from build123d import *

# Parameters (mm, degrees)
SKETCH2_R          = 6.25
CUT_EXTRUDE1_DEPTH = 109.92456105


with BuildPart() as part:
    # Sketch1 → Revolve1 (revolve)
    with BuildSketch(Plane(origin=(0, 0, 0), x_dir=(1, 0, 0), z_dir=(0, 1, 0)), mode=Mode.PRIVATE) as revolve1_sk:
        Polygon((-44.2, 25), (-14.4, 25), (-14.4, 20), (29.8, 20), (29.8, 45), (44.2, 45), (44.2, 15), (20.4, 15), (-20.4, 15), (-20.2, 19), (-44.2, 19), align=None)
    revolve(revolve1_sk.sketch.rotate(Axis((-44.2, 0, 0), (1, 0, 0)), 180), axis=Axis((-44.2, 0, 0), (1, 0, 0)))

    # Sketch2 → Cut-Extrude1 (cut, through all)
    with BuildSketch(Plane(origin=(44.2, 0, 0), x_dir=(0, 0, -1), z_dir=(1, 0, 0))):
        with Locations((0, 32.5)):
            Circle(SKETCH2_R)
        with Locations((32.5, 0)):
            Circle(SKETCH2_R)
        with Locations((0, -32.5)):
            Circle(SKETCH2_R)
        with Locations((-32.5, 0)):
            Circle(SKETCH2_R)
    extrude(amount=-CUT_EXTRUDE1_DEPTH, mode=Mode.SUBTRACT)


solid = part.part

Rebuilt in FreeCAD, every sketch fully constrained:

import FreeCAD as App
import Part
import Sketcher
from FreeCAD import Vector

doc = App.newDocument("Part")
params = doc.addObject("Spreadsheet::Sheet", "Params")
for row, (alias, value) in enumerate([
    ("sketch1_width", "24 mm"),
    ("sketch1_height", "6 mm"),
    ("sketch1_height2", "30 mm"),
    ("sketch1_height3", "25 mm"),
    ("sketch1_height4", "5 mm"),
    ("revolution_angle", "360 deg"),
    ("sketch2_diameter", "12.5 mm"),
], start=1):
    params.set(f"A{row}", alias)
    params.set(f"B{row}", "=" + value)
    params.setAlias(f"B{row}", alias)

body = doc.addObject("PartDesign::Body", "Body")

sketch1 = body.newObject("Sketcher::SketchObject", "Sketch")
sketch1.AttachmentSupport = (doc.getObject("XZ_Plane"), [""])
sketch1.MapMode = "FlatFace"
sketch1.addGeometry(Part.LineSegment(Vector(-14.4, -25, 0), Vector(-44.2, -25, 0)), False)
sketch1.addGeometry(Part.LineSegment(Vector(-44.2, -25, 0), Vector(-44.2, -19, 0)), False)
sketch1.addGeometry(Part.LineSegment(Vector(-44.2, -19, 0), Vector(-20.2, -19, 0)), False)
sketch1.addGeometry(Part.LineSegment(Vector(-20.2, -19, 0), Vector(-20.4, -15, 0)), False)
sketch1.addGeometry(Part.LineSegment(Vector(-20.4, -15, 0), Vector(44.2, -15, 0)), False)
sketch1.addGeometry(Part.LineSegment(Vector(44.2, -15, 0), Vector(44.2, -45, 0)), False)
sketch1.addGeometry(Part.LineSegment(Vector(44.2, -45, 0), Vector(29.8, -45, 0)), False)
sketch1.addGeometry(Part.LineSegment(Vector(29.8, -45, 0), Vector(29.8, -20, 0)), False)
sketch1.addGeometry(Part.LineSegment(Vector(29.8, -20, 0), Vector(-14.4, -20, 0)), False)
sketch1.addGeometry(Part.LineSegment(Vector(-14.4, -20, 0), Vector(-14.4, -25, 0)), False)
sketch1.addConstraint(Sketcher.Constraint("Coincident", 0, 2, 1, 1))
sketch1.addConstraint(Sketcher.Constraint("Coincident", 1, 2, 2, 1))
sketch1.addConstraint(Sketcher.Constraint("Coincident", 2, 2, 3, 1))
sketch1.addConstraint(Sketcher.Constraint("Coincident", 3, 2, 4, 1))
sketch1.addConstraint(Sketcher.Constraint("Coincident", 4, 2, 5, 1))
sketch1.addConstraint(Sketcher.Constraint("Coincident", 5, 2, 6, 1))
sketch1.addConstraint(Sketcher.Constraint("Coincident", 6, 2, 7, 1))
sketch1.addConstraint(Sketcher.Constraint("Coincident", 7, 2, 8, 1))
sketch1.addConstraint(Sketcher.Constraint("Coincident", 8, 2, 9, 1))
sketch1.addConstraint(Sketcher.Constraint("Coincident", 9, 2, 0, 1))
sketch1.addConstraint(Sketcher.Constraint("Horizontal", 0))
sketch1.addConstraint(Sketcher.Constraint("Vertical", 1))
sketch1.addConstraint(Sketcher.Constraint("Horizontal", 2))
sketch1.addConstraint(Sketcher.Constraint("Horizontal", 4))
sketch1.addConstraint(Sketcher.Constraint("Vertical", 5))
sketch1.addConstraint(Sketcher.Constraint("Horizontal", 6))
sketch1.addConstraint(Sketcher.Constraint("Vertical", 7))
sketch1.addConstraint(Sketcher.Constraint("Horizontal", 8))
sketch1.addConstraint(Sketcher.Constraint("Vertical", 9))
sketch1.addConstraint(Sketcher.Constraint("DistanceX", 2, 1, 2, 2, 24.0))
sketch1.addConstraint(Sketcher.Constraint("DistanceY", 1, 1, 1, 2, 6.0))
sketch1.addConstraint(Sketcher.Constraint("DistanceY", 5, 2, 5, 1, 30.0))
sketch1.addConstraint(Sketcher.Constraint("DistanceY", 7, 1, 7, 2, 25.0))
sketch1.addConstraint(Sketcher.Constraint("DistanceY", 9, 2, 9, 1, 5.0))
sketch1.addConstraint(Sketcher.Constraint("DistanceX", 0, 2, 0, 1, 29.8))
sketch1.addConstraint(Sketcher.Constraint("DistanceX", 4, 1, 4, 2, 64.6))
sketch1.addConstraint(Sketcher.Constraint("DistanceX", 6, 2, 6, 1, 14.4))
sketch1.addConstraint(Sketcher.Constraint("DistanceX", 8, 2, 8, 1, 44.2))
sketch1.addConstraint(Sketcher.Constraint("DistanceY", 0, 2, -1, 1, 25.0))
sketch1.addConstraint(Sketcher.Constraint("DistanceX", 0, 2, -1, 1, 44.2))
sketch1.setExpression("Constraints[19]", "Params.sketch1_width")
sketch1.setExpression("Constraints[20]", "Params.sketch1_height")
sketch1.setExpression("Constraints[21]", "Params.sketch1_height2")
sketch1.setExpression("Constraints[22]", "Params.sketch1_height3")
sketch1.setExpression("Constraints[23]", "Params.sketch1_height4")
revolution = body.newObject("PartDesign::Revolution", "Revolution")
revolution.Profile = sketch1
revolution.ReferenceAxis = (sketch1, ["H_Axis"])
revolution.setExpression("Angle", "Params.revolution_angle")

sketch2 = body.newObject("Sketcher::SketchObject", "Sketch001")
sketch2.AttachmentSupport = (doc.getObject("YZ_Plane"), [""])
sketch2.MapMode = "FlatFace"
sketch2.AttachmentOffset = App.Placement(Vector(0, 0, 44.2), App.Rotation())
sketch2.addGeometry(Part.Circle(Vector(32.5, 0, 0), Vector(0, 0, 1), 6.25), False)
sketch2.addGeometry(Part.Circle(Vector(0, -32.5, 0), Vector(0, 0, 1), 6.25), False)
sketch2.addGeometry(Part.Circle(Vector(-32.5, 0, 0), Vector(0, 0, 1), 6.25), False)
sketch2.addGeometry(Part.Circle(Vector(0, 32.5, 0), Vector(0, 0, 1), 6.25), False)
sketch2.addConstraint(Sketcher.Constraint("Equal", 0, 1))
sketch2.addConstraint(Sketcher.Constraint("Equal", 1, 2))
sketch2.addConstraint(Sketcher.Constraint("Equal", 2, 3))
sketch2.addConstraint(Sketcher.Constraint("Symmetric", 0, 3, 2, 3, -1, 1))
sketch2.addConstraint(Sketcher.Constraint("Symmetric", 1, 3, 3, 3, -1, 1))
sketch2.addConstraint(Sketcher.Constraint("PointOnObject", 0, 3, -1))
sketch2.addConstraint(Sketcher.Constraint("PointOnObject", 1, 3, -2))
sketch2.addConstraint(Sketcher.Constraint("Diameter", 0, 12.5))
sketch2.addConstraint(Sketcher.Constraint("DistanceX", 2, 3, 0, 3, 65.0))
sketch2.addConstraint(Sketcher.Constraint("DistanceY", 1, 3, 3, 3, 65.0))
sketch2.setExpression("Constraints[7]", "Params.sketch2_diameter")
pocket1 = body.newObject("PartDesign::Pocket", "Pocket")
pocket1.Profile = sketch2
pocket1.Type = "ThroughAll"

doc.recompute()
